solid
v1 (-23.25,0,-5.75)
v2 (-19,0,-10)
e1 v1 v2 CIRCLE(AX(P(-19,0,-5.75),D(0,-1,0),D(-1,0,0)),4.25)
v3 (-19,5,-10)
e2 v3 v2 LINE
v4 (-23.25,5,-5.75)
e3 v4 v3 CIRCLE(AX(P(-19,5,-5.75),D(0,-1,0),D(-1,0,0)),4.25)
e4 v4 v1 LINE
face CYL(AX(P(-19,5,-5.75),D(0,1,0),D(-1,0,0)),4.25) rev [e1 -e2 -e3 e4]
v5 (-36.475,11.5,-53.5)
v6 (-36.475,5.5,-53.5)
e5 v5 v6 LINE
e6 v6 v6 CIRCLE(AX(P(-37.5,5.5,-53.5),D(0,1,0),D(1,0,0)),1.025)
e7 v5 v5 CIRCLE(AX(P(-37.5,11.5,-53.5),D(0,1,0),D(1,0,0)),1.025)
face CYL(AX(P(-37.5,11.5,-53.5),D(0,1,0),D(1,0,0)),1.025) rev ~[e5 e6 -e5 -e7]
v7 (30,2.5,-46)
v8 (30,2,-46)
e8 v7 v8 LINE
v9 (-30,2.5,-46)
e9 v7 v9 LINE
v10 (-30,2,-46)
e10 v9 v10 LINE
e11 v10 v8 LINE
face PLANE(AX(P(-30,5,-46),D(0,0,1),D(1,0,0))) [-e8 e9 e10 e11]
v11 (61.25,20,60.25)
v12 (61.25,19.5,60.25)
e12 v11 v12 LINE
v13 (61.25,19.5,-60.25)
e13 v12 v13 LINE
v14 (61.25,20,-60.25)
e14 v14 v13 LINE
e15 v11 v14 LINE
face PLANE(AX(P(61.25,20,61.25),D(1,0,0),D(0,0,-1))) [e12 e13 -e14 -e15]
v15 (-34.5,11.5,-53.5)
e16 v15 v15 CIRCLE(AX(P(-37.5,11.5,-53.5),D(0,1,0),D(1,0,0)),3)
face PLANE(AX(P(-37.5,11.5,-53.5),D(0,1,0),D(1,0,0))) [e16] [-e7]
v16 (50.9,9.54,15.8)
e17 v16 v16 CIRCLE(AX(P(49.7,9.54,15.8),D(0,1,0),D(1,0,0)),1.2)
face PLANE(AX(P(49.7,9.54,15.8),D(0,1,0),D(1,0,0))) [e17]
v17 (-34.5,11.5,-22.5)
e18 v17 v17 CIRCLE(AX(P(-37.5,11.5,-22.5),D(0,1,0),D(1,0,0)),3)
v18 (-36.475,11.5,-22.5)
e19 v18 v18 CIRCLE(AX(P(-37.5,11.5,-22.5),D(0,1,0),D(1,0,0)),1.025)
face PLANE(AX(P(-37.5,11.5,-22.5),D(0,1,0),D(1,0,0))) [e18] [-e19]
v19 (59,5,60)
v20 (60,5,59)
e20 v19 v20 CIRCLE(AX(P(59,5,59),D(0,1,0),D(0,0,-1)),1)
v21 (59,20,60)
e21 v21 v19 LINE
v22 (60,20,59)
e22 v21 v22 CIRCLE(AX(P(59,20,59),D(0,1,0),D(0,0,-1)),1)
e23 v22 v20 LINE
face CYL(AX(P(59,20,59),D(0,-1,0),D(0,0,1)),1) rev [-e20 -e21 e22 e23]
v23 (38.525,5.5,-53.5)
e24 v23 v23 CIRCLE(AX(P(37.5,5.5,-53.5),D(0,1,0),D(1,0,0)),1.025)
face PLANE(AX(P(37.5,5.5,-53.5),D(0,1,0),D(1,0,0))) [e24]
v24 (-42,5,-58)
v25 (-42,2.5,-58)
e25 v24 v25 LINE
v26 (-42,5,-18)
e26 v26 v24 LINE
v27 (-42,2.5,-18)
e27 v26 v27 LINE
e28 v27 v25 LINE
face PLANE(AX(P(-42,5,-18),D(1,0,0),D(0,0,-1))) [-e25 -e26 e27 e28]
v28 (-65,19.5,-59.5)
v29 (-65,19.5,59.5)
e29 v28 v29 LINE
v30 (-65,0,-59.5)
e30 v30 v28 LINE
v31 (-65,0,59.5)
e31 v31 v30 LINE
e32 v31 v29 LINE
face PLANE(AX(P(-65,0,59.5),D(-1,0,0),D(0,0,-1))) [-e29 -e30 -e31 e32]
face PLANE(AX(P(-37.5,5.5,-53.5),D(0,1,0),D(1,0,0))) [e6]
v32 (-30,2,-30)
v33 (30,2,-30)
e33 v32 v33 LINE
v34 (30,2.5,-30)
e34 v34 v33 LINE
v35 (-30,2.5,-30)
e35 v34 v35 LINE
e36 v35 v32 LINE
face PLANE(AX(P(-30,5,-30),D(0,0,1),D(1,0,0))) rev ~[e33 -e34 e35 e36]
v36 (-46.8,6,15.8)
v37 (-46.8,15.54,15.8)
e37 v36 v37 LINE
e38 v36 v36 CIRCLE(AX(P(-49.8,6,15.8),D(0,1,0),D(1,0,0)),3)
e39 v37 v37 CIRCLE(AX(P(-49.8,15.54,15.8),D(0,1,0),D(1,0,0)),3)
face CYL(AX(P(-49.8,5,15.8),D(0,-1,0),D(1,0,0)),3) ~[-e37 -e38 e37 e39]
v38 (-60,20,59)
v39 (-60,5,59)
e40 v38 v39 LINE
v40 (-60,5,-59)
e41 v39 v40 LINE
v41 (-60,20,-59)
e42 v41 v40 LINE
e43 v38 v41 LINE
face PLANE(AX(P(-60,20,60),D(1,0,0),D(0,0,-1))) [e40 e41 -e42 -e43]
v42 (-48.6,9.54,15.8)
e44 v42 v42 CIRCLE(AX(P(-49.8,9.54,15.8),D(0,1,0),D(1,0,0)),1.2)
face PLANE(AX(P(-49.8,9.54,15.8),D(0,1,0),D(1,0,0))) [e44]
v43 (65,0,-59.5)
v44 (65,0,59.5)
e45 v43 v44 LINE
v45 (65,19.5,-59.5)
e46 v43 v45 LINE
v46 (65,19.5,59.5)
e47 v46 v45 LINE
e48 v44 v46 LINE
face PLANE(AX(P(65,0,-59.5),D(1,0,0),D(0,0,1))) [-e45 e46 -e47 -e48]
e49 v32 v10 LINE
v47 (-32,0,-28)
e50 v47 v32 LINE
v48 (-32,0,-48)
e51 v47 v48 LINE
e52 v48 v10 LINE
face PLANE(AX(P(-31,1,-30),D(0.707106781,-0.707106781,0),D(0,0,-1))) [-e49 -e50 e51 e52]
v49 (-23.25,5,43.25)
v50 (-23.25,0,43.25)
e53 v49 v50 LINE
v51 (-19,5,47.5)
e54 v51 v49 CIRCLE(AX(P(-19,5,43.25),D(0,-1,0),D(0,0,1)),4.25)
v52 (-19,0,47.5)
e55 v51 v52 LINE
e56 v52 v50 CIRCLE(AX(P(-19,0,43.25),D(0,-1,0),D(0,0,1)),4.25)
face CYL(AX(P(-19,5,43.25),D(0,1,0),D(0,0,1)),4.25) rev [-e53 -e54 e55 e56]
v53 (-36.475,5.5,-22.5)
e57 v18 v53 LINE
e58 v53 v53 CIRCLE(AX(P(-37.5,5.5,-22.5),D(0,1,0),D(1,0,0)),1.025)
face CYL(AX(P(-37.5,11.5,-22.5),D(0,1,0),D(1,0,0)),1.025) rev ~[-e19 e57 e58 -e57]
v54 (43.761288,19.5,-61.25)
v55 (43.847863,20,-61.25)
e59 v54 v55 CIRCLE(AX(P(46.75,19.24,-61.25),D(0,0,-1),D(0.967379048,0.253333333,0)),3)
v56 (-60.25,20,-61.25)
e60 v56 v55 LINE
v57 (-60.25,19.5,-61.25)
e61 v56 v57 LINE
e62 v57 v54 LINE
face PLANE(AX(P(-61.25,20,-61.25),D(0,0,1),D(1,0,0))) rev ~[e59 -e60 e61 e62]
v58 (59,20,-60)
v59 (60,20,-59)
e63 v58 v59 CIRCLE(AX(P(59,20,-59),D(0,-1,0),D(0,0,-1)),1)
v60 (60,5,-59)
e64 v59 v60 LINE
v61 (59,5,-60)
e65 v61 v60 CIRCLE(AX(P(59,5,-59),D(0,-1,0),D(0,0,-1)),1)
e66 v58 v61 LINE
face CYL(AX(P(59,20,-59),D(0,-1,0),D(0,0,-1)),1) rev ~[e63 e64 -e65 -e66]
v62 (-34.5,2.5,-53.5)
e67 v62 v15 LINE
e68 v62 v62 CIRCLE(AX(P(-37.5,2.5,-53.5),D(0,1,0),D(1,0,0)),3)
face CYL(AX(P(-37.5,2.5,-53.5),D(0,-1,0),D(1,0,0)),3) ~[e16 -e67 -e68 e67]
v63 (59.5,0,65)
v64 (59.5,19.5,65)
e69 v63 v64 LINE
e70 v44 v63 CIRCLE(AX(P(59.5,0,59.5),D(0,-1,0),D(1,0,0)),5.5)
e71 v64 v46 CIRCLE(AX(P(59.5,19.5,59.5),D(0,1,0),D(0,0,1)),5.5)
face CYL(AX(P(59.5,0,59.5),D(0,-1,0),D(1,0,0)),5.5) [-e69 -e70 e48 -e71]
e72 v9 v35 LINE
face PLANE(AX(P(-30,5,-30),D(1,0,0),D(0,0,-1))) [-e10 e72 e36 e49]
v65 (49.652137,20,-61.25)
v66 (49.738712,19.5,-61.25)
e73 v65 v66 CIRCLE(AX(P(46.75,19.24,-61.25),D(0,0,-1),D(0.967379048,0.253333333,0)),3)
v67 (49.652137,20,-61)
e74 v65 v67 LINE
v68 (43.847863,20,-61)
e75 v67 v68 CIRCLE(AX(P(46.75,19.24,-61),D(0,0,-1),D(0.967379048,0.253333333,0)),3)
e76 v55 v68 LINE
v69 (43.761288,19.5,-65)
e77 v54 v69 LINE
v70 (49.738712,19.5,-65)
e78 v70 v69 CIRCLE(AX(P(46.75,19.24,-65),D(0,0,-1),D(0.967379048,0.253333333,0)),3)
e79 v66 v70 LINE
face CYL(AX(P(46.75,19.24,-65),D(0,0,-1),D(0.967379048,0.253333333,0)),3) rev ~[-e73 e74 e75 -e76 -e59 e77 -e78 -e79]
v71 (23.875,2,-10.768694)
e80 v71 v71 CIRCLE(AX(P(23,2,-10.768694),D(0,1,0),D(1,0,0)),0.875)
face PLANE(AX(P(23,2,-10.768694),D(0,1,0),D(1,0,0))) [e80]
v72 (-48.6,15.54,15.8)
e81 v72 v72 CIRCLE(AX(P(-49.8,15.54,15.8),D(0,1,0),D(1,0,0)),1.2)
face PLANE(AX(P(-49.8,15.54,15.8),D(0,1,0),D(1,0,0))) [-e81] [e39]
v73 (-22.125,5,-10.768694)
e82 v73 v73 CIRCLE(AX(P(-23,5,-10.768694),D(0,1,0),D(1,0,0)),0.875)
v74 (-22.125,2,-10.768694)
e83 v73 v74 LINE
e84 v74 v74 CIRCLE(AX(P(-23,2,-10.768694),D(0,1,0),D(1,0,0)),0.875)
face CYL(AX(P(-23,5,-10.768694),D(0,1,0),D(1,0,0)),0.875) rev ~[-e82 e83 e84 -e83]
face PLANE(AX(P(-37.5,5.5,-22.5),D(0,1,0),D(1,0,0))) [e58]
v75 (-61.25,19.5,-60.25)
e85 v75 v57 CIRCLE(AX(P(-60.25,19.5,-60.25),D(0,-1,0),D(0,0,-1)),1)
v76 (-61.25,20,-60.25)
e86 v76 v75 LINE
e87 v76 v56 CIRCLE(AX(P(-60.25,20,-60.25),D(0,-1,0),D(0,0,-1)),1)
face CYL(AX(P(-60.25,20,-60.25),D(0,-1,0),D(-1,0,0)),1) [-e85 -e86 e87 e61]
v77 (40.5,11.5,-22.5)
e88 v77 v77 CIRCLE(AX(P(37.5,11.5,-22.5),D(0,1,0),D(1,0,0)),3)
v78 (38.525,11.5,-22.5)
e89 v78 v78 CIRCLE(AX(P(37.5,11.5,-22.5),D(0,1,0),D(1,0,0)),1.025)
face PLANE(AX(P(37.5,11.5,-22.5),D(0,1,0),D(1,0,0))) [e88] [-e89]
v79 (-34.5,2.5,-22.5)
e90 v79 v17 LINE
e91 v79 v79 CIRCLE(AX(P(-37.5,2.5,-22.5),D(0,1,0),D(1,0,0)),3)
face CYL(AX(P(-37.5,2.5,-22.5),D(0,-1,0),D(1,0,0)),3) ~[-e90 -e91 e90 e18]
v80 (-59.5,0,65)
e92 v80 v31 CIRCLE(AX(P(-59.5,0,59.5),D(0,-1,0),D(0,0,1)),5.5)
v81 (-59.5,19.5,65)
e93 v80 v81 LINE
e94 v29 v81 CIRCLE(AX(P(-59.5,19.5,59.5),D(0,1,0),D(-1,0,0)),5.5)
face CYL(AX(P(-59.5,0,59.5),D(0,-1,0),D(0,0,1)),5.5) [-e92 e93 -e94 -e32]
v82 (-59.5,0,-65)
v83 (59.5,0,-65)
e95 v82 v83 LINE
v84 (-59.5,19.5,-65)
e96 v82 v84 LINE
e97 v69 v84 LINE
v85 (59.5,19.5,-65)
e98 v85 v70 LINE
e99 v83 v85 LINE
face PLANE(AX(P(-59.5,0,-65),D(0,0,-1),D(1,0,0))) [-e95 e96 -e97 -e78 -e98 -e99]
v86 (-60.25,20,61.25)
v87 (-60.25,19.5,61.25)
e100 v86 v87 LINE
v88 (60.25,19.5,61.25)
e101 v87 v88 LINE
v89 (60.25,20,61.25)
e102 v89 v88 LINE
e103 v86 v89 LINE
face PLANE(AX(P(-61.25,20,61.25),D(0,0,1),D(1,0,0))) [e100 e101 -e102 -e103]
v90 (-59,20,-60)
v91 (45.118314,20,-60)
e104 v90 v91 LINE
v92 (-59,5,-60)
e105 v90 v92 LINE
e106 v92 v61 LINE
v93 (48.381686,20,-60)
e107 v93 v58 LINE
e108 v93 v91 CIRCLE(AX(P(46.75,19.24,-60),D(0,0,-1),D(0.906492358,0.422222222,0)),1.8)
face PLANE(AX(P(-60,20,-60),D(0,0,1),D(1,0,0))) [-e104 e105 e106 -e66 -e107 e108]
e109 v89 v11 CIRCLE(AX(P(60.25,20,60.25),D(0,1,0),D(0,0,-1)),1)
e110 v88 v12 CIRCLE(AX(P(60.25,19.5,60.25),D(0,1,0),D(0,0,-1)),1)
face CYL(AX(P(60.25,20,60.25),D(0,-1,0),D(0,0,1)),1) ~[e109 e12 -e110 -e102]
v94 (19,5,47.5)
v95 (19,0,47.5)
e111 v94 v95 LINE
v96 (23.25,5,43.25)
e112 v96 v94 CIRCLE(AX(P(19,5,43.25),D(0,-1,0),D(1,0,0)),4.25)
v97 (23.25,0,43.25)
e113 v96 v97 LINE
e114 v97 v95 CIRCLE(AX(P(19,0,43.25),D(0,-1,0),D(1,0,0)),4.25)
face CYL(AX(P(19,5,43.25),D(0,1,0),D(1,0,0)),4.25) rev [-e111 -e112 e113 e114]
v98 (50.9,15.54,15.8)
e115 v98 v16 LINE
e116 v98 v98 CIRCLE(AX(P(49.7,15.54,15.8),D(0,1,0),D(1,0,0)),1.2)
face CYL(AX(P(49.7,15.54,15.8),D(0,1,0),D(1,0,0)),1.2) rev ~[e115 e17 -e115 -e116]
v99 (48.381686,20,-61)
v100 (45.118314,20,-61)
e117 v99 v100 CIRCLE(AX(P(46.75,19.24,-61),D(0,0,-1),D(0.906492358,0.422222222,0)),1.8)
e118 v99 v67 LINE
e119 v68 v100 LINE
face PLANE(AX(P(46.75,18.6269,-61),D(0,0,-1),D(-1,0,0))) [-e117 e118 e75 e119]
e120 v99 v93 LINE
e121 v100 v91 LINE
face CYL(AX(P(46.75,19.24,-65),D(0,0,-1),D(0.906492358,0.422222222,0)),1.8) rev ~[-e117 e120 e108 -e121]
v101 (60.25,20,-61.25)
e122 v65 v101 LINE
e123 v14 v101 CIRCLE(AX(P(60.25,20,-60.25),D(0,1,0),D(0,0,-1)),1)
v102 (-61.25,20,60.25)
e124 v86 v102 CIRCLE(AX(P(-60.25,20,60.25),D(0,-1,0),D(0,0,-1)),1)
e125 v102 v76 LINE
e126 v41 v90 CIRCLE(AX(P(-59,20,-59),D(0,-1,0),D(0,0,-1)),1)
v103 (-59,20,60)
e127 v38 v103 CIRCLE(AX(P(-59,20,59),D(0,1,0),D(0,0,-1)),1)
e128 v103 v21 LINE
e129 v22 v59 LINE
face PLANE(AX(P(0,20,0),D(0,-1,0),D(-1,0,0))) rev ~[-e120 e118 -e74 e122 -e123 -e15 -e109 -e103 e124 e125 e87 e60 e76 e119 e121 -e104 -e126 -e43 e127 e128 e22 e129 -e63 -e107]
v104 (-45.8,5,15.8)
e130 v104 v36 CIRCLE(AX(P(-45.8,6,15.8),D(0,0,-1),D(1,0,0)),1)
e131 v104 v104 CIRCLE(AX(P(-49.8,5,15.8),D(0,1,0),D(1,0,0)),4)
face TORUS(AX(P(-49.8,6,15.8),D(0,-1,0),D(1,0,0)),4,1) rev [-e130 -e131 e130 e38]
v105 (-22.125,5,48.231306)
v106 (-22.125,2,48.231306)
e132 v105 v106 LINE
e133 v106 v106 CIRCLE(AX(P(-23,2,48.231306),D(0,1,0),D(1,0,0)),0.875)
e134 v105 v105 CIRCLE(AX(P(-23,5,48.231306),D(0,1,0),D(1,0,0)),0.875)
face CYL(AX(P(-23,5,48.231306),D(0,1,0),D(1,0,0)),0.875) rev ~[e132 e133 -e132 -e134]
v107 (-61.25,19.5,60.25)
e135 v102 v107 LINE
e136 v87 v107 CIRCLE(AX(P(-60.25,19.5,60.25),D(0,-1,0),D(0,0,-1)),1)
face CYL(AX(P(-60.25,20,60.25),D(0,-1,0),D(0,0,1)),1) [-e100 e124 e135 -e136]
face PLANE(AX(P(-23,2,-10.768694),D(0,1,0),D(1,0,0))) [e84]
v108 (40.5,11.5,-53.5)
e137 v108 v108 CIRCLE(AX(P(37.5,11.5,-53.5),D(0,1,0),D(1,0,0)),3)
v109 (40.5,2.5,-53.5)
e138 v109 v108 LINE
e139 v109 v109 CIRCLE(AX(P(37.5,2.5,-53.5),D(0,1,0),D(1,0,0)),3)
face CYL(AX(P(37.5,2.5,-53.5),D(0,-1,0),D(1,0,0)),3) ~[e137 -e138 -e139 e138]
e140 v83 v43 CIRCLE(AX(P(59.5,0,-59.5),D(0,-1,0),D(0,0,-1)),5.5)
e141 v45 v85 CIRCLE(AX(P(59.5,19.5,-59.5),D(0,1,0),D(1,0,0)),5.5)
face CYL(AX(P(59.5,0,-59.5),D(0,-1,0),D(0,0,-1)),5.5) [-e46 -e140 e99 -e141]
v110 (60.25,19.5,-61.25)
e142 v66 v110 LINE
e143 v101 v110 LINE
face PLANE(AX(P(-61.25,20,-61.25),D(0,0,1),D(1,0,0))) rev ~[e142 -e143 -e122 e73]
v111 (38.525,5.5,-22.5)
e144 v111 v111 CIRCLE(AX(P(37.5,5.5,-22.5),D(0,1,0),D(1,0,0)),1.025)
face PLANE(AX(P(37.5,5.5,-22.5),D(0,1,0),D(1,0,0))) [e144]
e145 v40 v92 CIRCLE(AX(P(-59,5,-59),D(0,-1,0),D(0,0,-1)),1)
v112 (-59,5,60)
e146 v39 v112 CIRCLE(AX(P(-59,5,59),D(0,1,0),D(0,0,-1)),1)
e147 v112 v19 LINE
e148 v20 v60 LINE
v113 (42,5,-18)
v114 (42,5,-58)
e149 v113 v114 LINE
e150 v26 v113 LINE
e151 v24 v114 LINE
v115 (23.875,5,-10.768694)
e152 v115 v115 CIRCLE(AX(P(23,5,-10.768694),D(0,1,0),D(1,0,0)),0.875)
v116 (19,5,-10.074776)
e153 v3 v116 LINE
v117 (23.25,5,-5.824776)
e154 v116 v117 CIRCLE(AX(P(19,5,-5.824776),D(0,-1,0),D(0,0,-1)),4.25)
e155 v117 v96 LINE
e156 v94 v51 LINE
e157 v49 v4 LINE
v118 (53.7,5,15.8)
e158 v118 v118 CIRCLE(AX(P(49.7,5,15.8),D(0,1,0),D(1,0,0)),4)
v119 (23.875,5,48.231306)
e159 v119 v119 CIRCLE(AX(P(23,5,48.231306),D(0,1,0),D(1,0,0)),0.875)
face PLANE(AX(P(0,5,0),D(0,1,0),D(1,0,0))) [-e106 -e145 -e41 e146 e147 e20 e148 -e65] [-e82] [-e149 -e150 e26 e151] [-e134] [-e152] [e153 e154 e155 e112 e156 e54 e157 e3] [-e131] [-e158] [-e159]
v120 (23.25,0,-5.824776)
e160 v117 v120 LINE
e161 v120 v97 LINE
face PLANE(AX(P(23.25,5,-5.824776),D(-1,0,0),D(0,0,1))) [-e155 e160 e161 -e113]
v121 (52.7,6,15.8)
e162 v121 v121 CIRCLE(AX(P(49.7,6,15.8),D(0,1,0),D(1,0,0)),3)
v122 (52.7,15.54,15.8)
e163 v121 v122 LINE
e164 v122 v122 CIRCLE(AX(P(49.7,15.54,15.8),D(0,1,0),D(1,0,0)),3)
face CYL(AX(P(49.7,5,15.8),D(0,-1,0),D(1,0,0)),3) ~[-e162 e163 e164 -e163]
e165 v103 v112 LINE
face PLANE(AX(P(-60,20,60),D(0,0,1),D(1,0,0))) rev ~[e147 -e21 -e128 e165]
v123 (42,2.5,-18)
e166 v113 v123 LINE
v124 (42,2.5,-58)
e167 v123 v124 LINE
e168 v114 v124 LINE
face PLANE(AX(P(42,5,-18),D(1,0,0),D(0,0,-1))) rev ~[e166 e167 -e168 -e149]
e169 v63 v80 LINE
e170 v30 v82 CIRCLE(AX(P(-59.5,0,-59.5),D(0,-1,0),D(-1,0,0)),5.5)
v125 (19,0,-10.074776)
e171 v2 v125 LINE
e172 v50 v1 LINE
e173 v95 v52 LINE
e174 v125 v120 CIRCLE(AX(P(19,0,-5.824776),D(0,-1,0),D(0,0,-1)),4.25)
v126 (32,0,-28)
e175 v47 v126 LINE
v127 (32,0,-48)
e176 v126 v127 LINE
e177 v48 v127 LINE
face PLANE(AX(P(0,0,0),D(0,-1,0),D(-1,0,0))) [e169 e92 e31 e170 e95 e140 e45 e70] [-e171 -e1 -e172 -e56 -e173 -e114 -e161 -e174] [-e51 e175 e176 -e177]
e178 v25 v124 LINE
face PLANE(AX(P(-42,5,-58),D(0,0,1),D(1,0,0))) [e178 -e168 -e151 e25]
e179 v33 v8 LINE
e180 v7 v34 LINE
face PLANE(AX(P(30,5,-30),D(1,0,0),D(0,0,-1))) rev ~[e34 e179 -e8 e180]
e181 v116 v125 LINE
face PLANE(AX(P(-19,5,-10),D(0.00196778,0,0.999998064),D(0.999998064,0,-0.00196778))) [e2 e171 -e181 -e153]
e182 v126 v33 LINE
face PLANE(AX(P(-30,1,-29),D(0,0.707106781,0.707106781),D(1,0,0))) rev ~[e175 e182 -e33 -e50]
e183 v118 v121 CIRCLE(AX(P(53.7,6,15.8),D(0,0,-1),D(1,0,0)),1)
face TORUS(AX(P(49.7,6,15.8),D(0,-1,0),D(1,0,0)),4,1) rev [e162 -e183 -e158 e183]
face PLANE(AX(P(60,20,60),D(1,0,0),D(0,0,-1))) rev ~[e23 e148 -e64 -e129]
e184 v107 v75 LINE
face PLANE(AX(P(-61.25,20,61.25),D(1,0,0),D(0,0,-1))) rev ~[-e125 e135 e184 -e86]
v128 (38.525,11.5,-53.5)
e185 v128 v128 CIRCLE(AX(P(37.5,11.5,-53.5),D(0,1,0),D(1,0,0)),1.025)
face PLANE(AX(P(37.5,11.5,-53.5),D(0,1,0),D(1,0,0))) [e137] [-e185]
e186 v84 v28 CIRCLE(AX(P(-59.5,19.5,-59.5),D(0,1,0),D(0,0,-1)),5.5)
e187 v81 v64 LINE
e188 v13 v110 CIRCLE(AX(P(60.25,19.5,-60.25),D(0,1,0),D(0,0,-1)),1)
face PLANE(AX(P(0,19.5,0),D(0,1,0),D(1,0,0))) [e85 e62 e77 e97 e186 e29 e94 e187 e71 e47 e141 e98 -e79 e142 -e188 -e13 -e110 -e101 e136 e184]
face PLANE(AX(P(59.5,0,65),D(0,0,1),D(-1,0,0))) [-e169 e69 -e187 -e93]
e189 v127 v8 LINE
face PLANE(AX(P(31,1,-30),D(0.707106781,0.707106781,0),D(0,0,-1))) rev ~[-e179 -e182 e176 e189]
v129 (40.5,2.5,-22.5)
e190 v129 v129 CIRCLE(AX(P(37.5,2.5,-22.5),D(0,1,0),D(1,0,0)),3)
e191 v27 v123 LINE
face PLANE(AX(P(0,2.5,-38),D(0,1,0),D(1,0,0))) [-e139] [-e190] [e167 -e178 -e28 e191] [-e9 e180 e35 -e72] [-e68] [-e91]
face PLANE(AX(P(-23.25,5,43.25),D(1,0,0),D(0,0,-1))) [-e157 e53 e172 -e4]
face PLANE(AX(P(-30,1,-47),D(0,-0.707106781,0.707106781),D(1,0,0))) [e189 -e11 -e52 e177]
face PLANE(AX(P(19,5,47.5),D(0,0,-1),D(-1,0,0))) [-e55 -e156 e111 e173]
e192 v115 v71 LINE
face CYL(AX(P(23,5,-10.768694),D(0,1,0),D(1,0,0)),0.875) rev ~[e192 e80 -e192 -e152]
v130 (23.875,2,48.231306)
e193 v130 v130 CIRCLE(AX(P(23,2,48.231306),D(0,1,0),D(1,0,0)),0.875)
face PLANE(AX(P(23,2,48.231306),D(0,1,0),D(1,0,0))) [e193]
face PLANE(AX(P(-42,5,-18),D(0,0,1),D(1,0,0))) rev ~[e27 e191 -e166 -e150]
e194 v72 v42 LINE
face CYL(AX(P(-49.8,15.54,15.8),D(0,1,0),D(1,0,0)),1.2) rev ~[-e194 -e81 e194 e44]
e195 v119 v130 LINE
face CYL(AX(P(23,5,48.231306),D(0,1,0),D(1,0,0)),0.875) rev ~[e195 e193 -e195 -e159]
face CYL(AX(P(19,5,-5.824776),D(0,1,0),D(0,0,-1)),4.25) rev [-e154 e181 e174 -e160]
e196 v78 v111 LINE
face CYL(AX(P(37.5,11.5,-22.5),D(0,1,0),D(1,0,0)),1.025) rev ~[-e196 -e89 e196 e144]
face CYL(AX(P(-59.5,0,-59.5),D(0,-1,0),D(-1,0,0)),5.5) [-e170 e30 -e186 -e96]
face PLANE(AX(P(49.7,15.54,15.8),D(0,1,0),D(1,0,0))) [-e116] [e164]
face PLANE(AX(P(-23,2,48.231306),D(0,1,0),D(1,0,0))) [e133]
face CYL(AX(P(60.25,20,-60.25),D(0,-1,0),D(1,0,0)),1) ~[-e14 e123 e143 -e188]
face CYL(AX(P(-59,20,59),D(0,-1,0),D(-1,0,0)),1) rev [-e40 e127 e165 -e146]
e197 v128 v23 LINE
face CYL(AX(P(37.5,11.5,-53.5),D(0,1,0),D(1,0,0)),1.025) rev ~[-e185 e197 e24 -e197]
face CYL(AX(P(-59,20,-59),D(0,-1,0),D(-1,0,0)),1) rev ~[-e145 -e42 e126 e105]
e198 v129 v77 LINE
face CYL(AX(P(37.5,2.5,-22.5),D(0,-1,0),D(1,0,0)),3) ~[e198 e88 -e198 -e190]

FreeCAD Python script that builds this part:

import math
import FreeCAD as App
import Part
import Sketcher

V = App.Vector
Q = App.Units.Quantity


def edges_at(feature, points):
    """Names of the edges that pass closest to the given points."""
    edges = feature.Shape.Edges
    near = lambda p: min(range(len(edges)), key=lambda i: edges[i].distToShape(Part.Vertex(*p))[0])
    return sorted({f"Edge{near(p) + 1}" for p in points})


def add_polygon(sketch, points):
    """Adds a closed chain of lines whose ends are joined by coincident constraints."""
    first, n = sketch.GeometryCount, len(points)
    for a, b in zip(points, points[1:] + points[:1]):
        sketch.addGeometry(Part.LineSegment(App.Vector(*a, 0), App.Vector(*b, 0)), False)
    for i in range(n):
        sketch.addConstraint(Sketcher.Constraint("Coincident", first + i, 2, first + (i + 1) % n, 1))

doc = App.newDocument("Part")
body = doc.addObject("PartDesign::Body", "Body")

# Sketch on XZ plane
sketch1 = doc.addObject("Sketcher::SketchObject", "Sketch")
body.addObject(sketch1)
sketch1.AttachmentSupport = (doc.XZ_Plane, [""])
sketch1.MapMode = "FlatFace"
sketch1.addGeometry(Part.LineSegment(V(60, -65, 0), V(-60, -65, 0)), False)
sketch1.addGeometry(Part.ArcOfCircle(Part.Circle(V(-60, -60, 0), V(0, 0, 1), 5), math.radians(180), math.radians(270)), False)
sketch1.addGeometry(Part.LineSegment(V(-65, -60, 0), V(-65, 60, 0)), False)
sketch1.addGeometry(Part.ArcOfCircle(Part.Circle(V(-60, 60, 0), V(0, 0, 1), 5), math.radians(90), math.radians(180)), False)
sketch1.addGeometry(Part.LineSegment(V(-60, 65, 0), V(60, 65, 0)), False)
sketch1.addGeometry(Part.ArcOfCircle(Part.Circle(V(60, 60, 0), V(0, 0, 1), 5), math.radians(0), math.radians(90)), False)
sketch1.addGeometry(Part.LineSegment(V(65, 60, 0), V(65, -60, 0)), False)
sketch1.addGeometry(Part.ArcOfCircle(Part.Circle(V(60, -60, 0), V(0, 0, 1), 5), math.radians(-90), math.radians(0)), False)
sketch1.addConstraint(Sketcher.Constraint("Tangent", 0, 2, 1, 2))
sketch1.addConstraint(Sketcher.Constraint("Tangent", 1, 1, 2, 1))
sketch1.addConstraint(Sketcher.Constraint("Tangent", 2, 2, 3, 2))
sketch1.addConstraint(Sketcher.Constraint("Tangent", 3, 1, 4, 1))
sketch1.addConstraint(Sketcher.Constraint("Tangent", 4, 2, 5, 2))
sketch1.addConstraint(Sketcher.Constraint("Tangent", 5, 1, 6, 1))
sketch1.addConstraint(Sketcher.Constraint("Tangent", 6, 2, 7, 2))
sketch1.addConstraint(Sketcher.Constraint("Tangent", 7, 1, 0, 1))
sketch1.addConstraint(Sketcher.Constraint("Horizontal", 0))
sketch1.addConstraint(Sketcher.Constraint("Vertical", 2))
sketch1.addConstraint(Sketcher.Constraint("Horizontal", 4))
sketch1.addConstraint(Sketcher.Constraint("Vertical", 6))
sketch1.addConstraint(Sketcher.Constraint("Equal", 1, 3))
sketch1.addConstraint(Sketcher.Constraint("Equal", 3, 5))
sketch1.addConstraint(Sketcher.Constraint("Equal", 5, 7))
sketch1.addConstraint(Sketcher.Constraint("Symmetric", 1, 3, 5, 3, -1, 1))
sketch1.addConstraint(Sketcher.Constraint("Equal", 4, 2))
sketch1.addConstraint(Sketcher.Constraint("Radius", 1, Q("5.5 mm")))
sketch1.addConstraint(Sketcher.Constraint("DistanceX", 0, 2, 0, 1, Q("119 mm")))
pad1 = doc.addObject("PartDesign::Pad", "Pad")
body.addObject(pad1)
pad1.Profile = sketch1
pad1.Length = 20
pad1.Reversed = True

# Sketch on XZ plane
sketch2 = doc.addObject("Sketcher::SketchObject", "Sketch001")
body.addObject(sketch2)
sketch2.AttachmentSupport = (doc.XZ_Plane, [""])
sketch2.MapMode = "FlatFace"
sketch2.AttachmentOffset = App.Placement(V(0, 0, -20), App.Rotation())
add_polygon(sketch2, [(-60, -60), (-60, 60), (60, 60), (60, -60)])  # lines 0-3
sketch2.addConstraint(Sketcher.Constraint("Vertical", 0))
sketch2.addConstraint(Sketcher.Constraint("Horizontal", 1))
sketch2.addConstraint(Sketcher.Constraint("Vertical", 2))
sketch2.addConstraint(Sketcher.Constraint("Horizontal", 3))
sketch2.addConstraint(Sketcher.Constraint("Symmetric", 0, 2, 2, 2, -1, 1))
sketch2.addConstraint(Sketcher.Constraint("Equal", 3, 0))
sketch2.addConstraint(Sketcher.Constraint("DistanceX", 1, 1, 1, 2, Q("120 mm")))
pocket1 = doc.addObject("PartDesign::Pocket", "Pocket")
body.addObject(pocket1)
pocket1.Profile = sketch2
pocket1.Length = 15
pocket1.Reversed = True
doc.recompute()

fillet = doc.addObject("PartDesign::Fillet", "Fillet")
body.addObject(fillet)
fillet.Base = (pocket1, edges_at(pocket1, [(-60, 12.5, -60)]))
fillet.Radius = 1
doc.recompute()

fillet2 = doc.addObject("PartDesign::Fillet", "Fillet001")
body.addObject(fillet2)
fillet2.Base = (fillet, edges_at(fillet, [(60, 12.5, -60)]))
fillet2.Radius = 1
doc.recompute()

fillet3 = doc.addObject("PartDesign::Fillet", "Fillet002")
body.addObject(fillet3)
fillet3.Base = (fillet2, edges_at(fillet2, [(-60, 12.5, 60)]))
fillet3.Radius = 1
doc.recompute()

fillet4 = doc.addObject("PartDesign::Fillet", "Fillet003")
body.addObject(fillet4)
fillet4.Base = (fillet3, edges_at(fillet3, [(60, 12.5, 60)]))
fillet4.Radius = 1

# Sketch on XZ plane
sketch3 = doc.addObject("Sketcher::SketchObject", "Sketch002")
body.addObject(sketch3)
sketch3.AttachmentSupport = (doc.XZ_Plane, [""])
sketch3.MapMode = "FlatFace"
sketch3.AttachmentOffset = App.Placement(V(0, 0, -5), App.Rotation())
sketch3.addGeometry(Part.LineSegment(V(19, -10.1, 0), V(-19, -10, 0)), False)
sketch3.addGeometry(Part.ArcOfCircle(Part.Circle(V(-19, -5.8, 0), V(0, 0, 1), 4.2), math.radians(180), math.radians(270)), False)
sketch3.addGeometry(Part.LineSegment(V(-23.2, -5.8, 0), V(-23.2, 43.2, 0)), False)
sketch3.addGeometry(Part.ArcOfCircle(Part.Circle(V(-19, 43.2, 0), V(0, 0, 1), 4.2), math.radians(90), math.radians(180)), False)
sketch3.addGeometry(Part.LineSegment(V(-19, 47.5, 0), V(19, 47.5, 0)), False)
sketch3.addGeometry(Part.ArcOfCircle(Part.Circle(V(19, 43.2, 0), V(0, 0, 1), 4.2), math.radians(0), math.radians(90)), False)
sketch3.addGeometry(Part.LineSegment(V(23.2, 43.2, 0), V(23.2, -5.8, 0)), False)
sketch3.addGeometry(Part.ArcOfCircle(Part.Circle(V(19, -5.8, 0), V(0, 0, 1), 4.2), math.radians(-90), math.radians(0)), False)
sketch3.addConstraint(Sketcher.Constraint("Coincident", 0, 2, 1, 2))
sketch3.addConstraint(Sketcher.Constraint("Tangent", 1, 1, 2, 1))
sketch3.addConstraint(Sketcher.Constraint("Tangent", 2, 2, 3, 2))
sketch3.addConstraint(Sketcher.Constraint("Tangent", 3, 1, 4, 1))
sketch3.addConstraint(Sketcher.Constraint("Tangent", 4, 2, 5, 2))
sketch3.addConstraint(Sketcher.Constraint("Tangent", 5, 1, 6, 1))
sketch3.addConstraint(Sketcher.Constraint("Tangent", 6, 2, 7, 2))
sketch3.addConstraint(Sketcher.Constraint("Coincident", 7, 1, 0, 1))
sketch3.addConstraint(Sketcher.Constraint("Vertical", 2))
sketch3.addConstraint(Sketcher.Constraint("Horizontal", 4))
sketch3.addConstraint(Sketcher.Constraint("Vertical", 6))
sketch3.addConstraint(Sketcher.Constraint("Equal", 1, 3))
sketch3.addConstraint(Sketcher.Constraint("Equal", 3, 5))
sketch3.addConstraint(Sketcher.Constraint("Equal", 5, 7))
sketch3.addConstraint(Sketcher.Constraint("Vertical", 3, 3, 0, 2))
sketch3.addConstraint(Sketcher.Constraint("Vertical", 4, 2, 7, 1))
sketch3.addConstraint(Sketcher.Constraint("DistanceX", 4, 1, 4, 2, Q("38 mm")))
sketch3.addConstraint(Sketcher.Constraint("DistanceY", 2, 1, 2, 2, Q("49 mm")))
sketch3.addConstraint(Sketcher.Constraint("Radius", 1, Q("4.25 mm")))
sketch3.addConstraint(Sketcher.Constraint("DistanceX", 1, 3, -1, 1, Q("19 mm")))
sketch3.addConstraint(Sketcher.Constraint("DistanceY", 0, 2, -1, 1, Q("10 mm")))
sketch3.addConstraint(Sketcher.Constraint("DistanceY", 6, 2, 6, 1, Q("49.074776 mm")))
pocket2 = doc.addObject("PartDesign::Pocket", "Pocket001")
body.addObject(pocket2)
pocket2.Profile = sketch3
pocket2.Length = 5
pocket2.Reversed = True

# Sketch on XZ plane
sketch4 = doc.addObject("Sketcher::SketchObject", "Sketch003")
body.addObject(sketch4)
sketch4.AttachmentSupport = (doc.XZ_Plane, [""])
sketch4.MapMode = "FlatFace"
sketch4.AttachmentOffset = App.Placement(V(0, 0, -5), App.Rotation())
add_polygon(sketch4, [(-30, -46), (-30, -30), (30, -30), (30, -46)])  # lines 0-3
sketch4.addConstraint(Sketcher.Constraint("Vertical", 0))
sketch4.addConstraint(Sketcher.Constraint("Horizontal", 1))
sketch4.addConstraint(Sketcher.Constraint("Vertical", 2))
sketch4.addConstraint(Sketcher.Constraint("Horizontal", 3))
sketch4.addConstraint(Sketcher.Constraint("DistanceX", 1, 1, 1, 2, Q("60 mm")))
sketch4.addConstraint(Sketcher.Constraint("DistanceY", 0, 1, 0, 2, Q("16 mm")))
sketch4.addConstraint(Sketcher.Constraint("DistanceX", 0, 2, -1, 1, Q("30 mm")))
sketch4.addConstraint(Sketcher.Constraint("DistanceY", 0, 2, -1, 1, Q("30 mm")))
pocket3 = doc.addObject("PartDesign::Pocket", "Pocket002")
body.addObject(pocket3)
pocket3.Profile = sketch4
pocket3.Length = 5
pocket3.Reversed = True

# Sketch on XZ plane
sketch5 = doc.addObject("Sketcher::SketchObject", "Sketch004")
body.addObject(sketch5)
sketch5.AttachmentSupport = (doc.XZ_Plane, [""])
sketch5.MapMode = "FlatFace"
sketch5.AttachmentOffset = App.Placement(V(0, 0, -5), App.Rotation())
add_polygon(sketch5, [(-42, -58), (-42, -18), (42, -18), (42, -58)])  # lines 0-3
sketch5.addConstraint(Sketcher.Constraint("Vertical", 0))
sketch5.addConstraint(Sketcher.Constraint("Horizontal", 1))
sketch5.addConstraint(Sketcher.Constraint("Vertical", 2))
sketch5.addConstraint(Sketcher.Constraint("Horizontal", 3))
sketch5.addConstraint(Sketcher.Constraint("DistanceX", 1, 1, 1, 2, Q("84 mm")))
sketch5.addConstraint(Sketcher.Constraint("DistanceY", 0, 1, 0, 2, Q("40 mm")))
sketch5.addConstraint(Sketcher.Constraint("DistanceX", 0, 2, -1, 1, Q("42 mm")))
sketch5.addConstraint(Sketcher.Constraint("DistanceY", 0, 2, -1, 1, Q("18 mm")))
pocket4 = doc.addObject("PartDesign::Pocket", "Pocket003")
body.addObject(pocket4)
pocket4.Profile = sketch5
pocket4.Length = 2.5
pocket4.Reversed = True

# Sketch on XZ plane
sketch6 = doc.addObject("Sketcher::SketchObject", "Sketch005")
body.addObject(sketch6)
sketch6.AttachmentSupport = (doc.XZ_Plane, [""])
sketch6.MapMode = "FlatFace"
sketch6.AttachmentOffset = App.Placement(V(0, 0, -2.5), App.Rotation())
sketch6.addGeometry(Part.Circle(V(37.5, -53.5, 0), V(0, 0, 1), 3), False)
sketch6.addGeometry(Part.Circle(V(-37.5, -53.5, 0), V(0, 0, 1), 3), False)
sketch6.addGeometry(Part.Circle(V(-37.5, -22.5, 0), V(0, 0, 1), 3), False)
sketch6.addGeometry(Part.Circle(V(37.5, -22.5, 0), V(0, 0, 1), 3), False)
sketch6.addConstraint(Sketcher.Constraint("Equal", 0, 1))
sketch6.addConstraint(Sketcher.Constraint("Equal", 1, 2))
sketch6.addConstraint(Sketcher.Constraint("Equal", 2, 3))
sketch6.addConstraint(Sketcher.Constraint("Symmetric", 0, 3, 1, 3, -2))
sketch6.addConstraint(Sketcher.Constraint("Symmetric", 2, 3, 3, 3, -2))
sketch6.addConstraint(Sketcher.Constraint("Vertical", 1, 3, 2, 3))
sketch6.addConstraint(Sketcher.Constraint("Diameter", 0, Q("6 mm")))
sketch6.addConstraint(Sketcher.Constraint("DistanceX", 1, 3, 0, 3, Q("75 mm")))
sketch6.addConstraint(Sketcher.Constraint("DistanceY", 1, 3, 2, 3, Q("31 mm")))
sketch6.addConstraint(Sketcher.Constraint("DistanceY", 0, 3, -1, 1, Q("53.5 mm")))
pad2 = doc.addObject("PartDesign::Pad", "Pad001")
body.addObject(pad2)
pad2.Profile = sketch6
pad2.Length = 9
pad2.Reversed = True
doc.recompute()

chamfer = doc.addObject("PartDesign::Chamfer", "Chamfer")
body.addObject(chamfer)
chamfer.Base = (pad2, edges_at(pad2, [
    (30, 0, -38),
    (0, 0, -30),
    (-30, 0, -38),
    (0, 0, -46),
]))
chamfer.Size = 2

# Sketch on XY plane
sketch7 = doc.addObject("Sketcher::SketchObject", "Sketch006")
body.addObject(sketch7)
sketch7.AttachmentSupport = (doc.XY_Plane, [""])
sketch7.MapMode = "FlatFace"
sketch7.AttachmentOffset = App.Placement(V(0, 0, -65), App.Rotation())
sketch7.addGeometry(Part.LineSegment(V(45.1, 20, 0), V(48.4, 20, 0)), False)
sketch7.addGeometry(Part.ArcOfCircle(Part.Circle(V(46.8, 19.2, 0), V(0, 0, 1), 1.8), math.radians(155), math.radians(385)), False)
sketch7.addConstraint(Sketcher.Constraint("Coincident", 0, 1, 1, 1))
sketch7.addConstraint(Sketcher.Constraint("Coincident", 1, 2, 0, 2))
sketch7.addConstraint(Sketcher.Constraint("Horizontal", 0))
sketch7.addConstraint(Sketcher.Constraint("Radius", 1, Q("1.8 mm")))
sketch7.addConstraint(Sketcher.Constraint("DistanceY", -1, 1, 0, 1, Q("20 mm")))
sketch7.addConstraint(Sketcher.Constraint("DistanceX", -1, 1, 1, 3, Q("46.75 mm")))
sketch7.addConstraint(Sketcher.Constraint("DistanceY", -1, 1, 1, 3, Q("19.24 mm")))
pocket5 = doc.addObject("PartDesign::Pocket", "Pocket004")
body.addObject(pocket5)
pocket5.Profile = sketch7
pocket5.Length = 5
pocket5.Reversed = True

# Sketch on XY plane
sketch8 = doc.addObject("Sketcher::SketchObject", "Sketch007")
body.addObject(sketch8)
sketch8.AttachmentSupport = (doc.XY_Plane, [""])
sketch8.MapMode = "FlatFace"
sketch8.AttachmentOffset = App.Placement(V(0, 0, -65), App.Rotation())
sketch8.addGeometry(Part.LineSegment(V(43.8, 20, 0), V(49.7, 20, 0)), False)
sketch8.addGeometry(Part.ArcOfCircle(Part.Circle(V(46.8, 19.2, 0), V(0, 0, 1), 3), math.radians(165), math.radians(375)), False)
sketch8.addConstraint(Sketcher.Constraint("Coincident", 0, 1, 1, 1))
sketch8.addConstraint(Sketcher.Constraint("Coincident", 1, 2, 0, 2))
sketch8.addConstraint(Sketcher.Constraint("Horizontal", 0))
sketch8.addConstraint(Sketcher.Constraint("Radius", 1, Q("3 mm")))
sketch8.addConstraint(Sketcher.Constraint("DistanceY", -1, 1, 0, 1, Q("20 mm")))
sketch8.addConstraint(Sketcher.Constraint("DistanceX", -1, 1, 1, 3, Q("46.75 mm")))
sketch8.addConstraint(Sketcher.Constraint("DistanceY", -1, 1, 1, 3, Q("19.24 mm")))
pocket6 = doc.addObject("PartDesign::Pocket", "Pocket005")
body.addObject(pocket6)
pocket6.Profile = sketch8
pocket6.Length = 4
pocket6.Reversed = True

# Sketch on XZ plane
sketch9 = doc.addObject("Sketcher::SketchObject", "Sketch008")
body.addObject(sketch9)
sketch9.AttachmentSupport = (doc.XZ_Plane, [""])
sketch9.MapMode = "FlatFace"
sketch9.AttachmentOffset = App.Placement(V(0, 0, -5), App.Rotation())
sketch9.addGeometry(Part.Circle(V(49.7, 15.8, 0), V(0, 0, 1), 3), False)
sketch9.addGeometry(Part.Circle(V(-49.8, 15.8, 0), V(0, 0, 1), 3), False)
sketch9.addConstraint(Sketcher.Constraint("Equal", 0, 1))
sketch9.addConstraint(Sketcher.Constraint("Horizontal", 0, 3, 1, 3))
sketch9.addConstraint(Sketcher.Constraint("Diameter", 0, Q("6 mm")))
sketch9.addConstraint(Sketcher.Constraint("DistanceX", -1, 1, 0, 3, Q("49.7 mm")))
sketch9.addConstraint(Sketcher.Constraint("DistanceY", -1, 1, 0, 3, Q("15.8 mm")))
sketch9.addConstraint(Sketcher.Constraint("DistanceX", 1, 3, -1, 1, Q("49.8 mm")))
pad3 = doc.addObject("PartDesign::Pad", "Pad002")
body.addObject(pad3)
pad3.Profile = sketch9
pad3.Length = 10.54
pad3.Reversed = True

# Sketch on XZ plane
sketch10 = doc.addObject("Sketcher::SketchObject", "Sketch009")
body.addObject(sketch10)
sketch10.AttachmentSupport = (doc.XZ_Plane, [""])
sketch10.MapMode = "FlatFace"
sketch10.AttachmentOffset = App.Placement(V(0, 0, -20), App.Rotation())
sketch10.addGeometry(Part.LineSegment(V(-60, 65, 0), V(60, 65, 0)), False)  # 0
sketch10.addGeometry(Part.ArcOfCircle(Part.Circle(V(60, 60, 0), V(0, 0, 1), 5), math.radians(0), math.radians(90)), False)  # 1
sketch10.addGeometry(Part.LineSegment(V(65, 60, 0), V(65, -60, 0)), False)  # 2
sketch10.addGeometry(Part.ArcOfCircle(Part.Circle(V(60, -60, 0), V(0, 0, 1), 5), math.radians(-90), math.radians(0)), False)  # 3
sketch10.addGeometry(Part.LineSegment(V(60, -65, 0), V(-60, -65, 0)), False)  # 4
sketch10.addGeometry(Part.ArcOfCircle(Part.Circle(V(-60, -60, 0), V(0, 0, 1), 5), math.radians(180), math.radians(270)), False)  # 5
sketch10.addGeometry(Part.LineSegment(V(-65, -60, 0), V(-65, 60, 0)), False)  # 6
sketch10.addGeometry(Part.ArcOfCircle(Part.Circle(V(-60, 60, 0), V(0, 0, 1), 5), math.radians(90), math.radians(180)), False)  # 7
add_polygon(sketch10, [(61, 61), (-61, 61), (-61, -61), (61, -61)])  # lines 8-11
sketch10.addConstraint(Sketcher.Constraint("Tangent", 0, 2, 1, 2))
sketch10.addConstraint(Sketcher.Constraint("Tangent", 1, 1, 2, 1))
sketch10.addConstraint(Sketcher.Constraint("Tangent", 2, 2, 3, 2))
sketch10.addConstraint(Sketcher.Constraint("Tangent", 3, 1, 4, 1))
sketch10.addConstraint(Sketcher.Constraint("Tangent", 4, 2, 5, 2))
sketch10.addConstraint(Sketcher.Constraint("Tangent", 5, 1, 6, 1))
sketch10.addConstraint(Sketcher.Constraint("Tangent", 6, 2, 7, 2))
sketch10.addConstraint(Sketcher.Constraint("Tangent", 7, 1, 0, 1))
sketch10.addConstraint(Sketcher.Constraint("Horizontal", 0))
sketch10.addConstraint(Sketcher.Constraint("Vertical", 2))
sketch10.addConstraint(Sketcher.Constraint("Horizontal", 4))
sketch10.addConstraint(Sketcher.Constraint("Vertical", 6))
sketch10.addConstraint(Sketcher.Constraint("Horizontal", 8))
sketch10.addConstraint(Sketcher.Constraint("Vertical", 9))
sketch10.addConstraint(Sketcher.Constraint("Horizontal", 10))
sketch10.addConstraint(Sketcher.Constraint("Vertical", 11))
sketch10.addConstraint(Sketcher.Constraint("Equal", 1, 3))
sketch10.addConstraint(Sketcher.Constraint("Equal", 3, 5))
sketch10.addConstraint(Sketcher.Constraint("Equal", 5, 7))
sketch10.addConstraint(Sketcher.Constraint("Symmetric", 1, 3, 5, 3, -1, 1))
sketch10.addConstraint(Sketcher.Constraint("Symmetric", 8, 2, 10, 2, -1, 1))
sketch10.addConstraint(Sketcher.Constraint("Equal", 4, 2))
sketch10.addConstraint(Sketcher.Constraint("Equal", 10, 9))
sketch10.addConstraint(Sketcher.Constraint("Radius", 1, Q("5.5 mm")))
sketch10.addConstraint(Sketcher.Constraint("DistanceX", 0, 1, 0, 2, Q("119 mm")))
sketch10.addConstraint(Sketcher.Constraint("DistanceX", 8, 2, 8, 1, Q("122.5 mm")))
pocket7 = doc.addObject("PartDesign::Pocket", "Pocket006")
body.addObject(pocket7)
pocket7.Profile = sketch10
pocket7.Length = 0.5
pocket7.Reversed = True
doc.recompute()

fillet5 = doc.addObject("PartDesign::Fillet", "Fillet004")
body.addObject(fillet5)
fillet5.Base = (pocket7, edges_at(pocket7, [(61.25, 19.75, 61.25)]))
fillet5.Radius = 1
doc.recompute()

fillet6 = doc.addObject("PartDesign::Fillet", "Fillet005")
body.addObject(fillet6)
fillet6.Base = (fillet5, edges_at(fillet5, [(-61.25, 19.75, 61.25)]))
fillet6.Radius = 1
doc.recompute()

fillet7 = doc.addObject("PartDesign::Fillet", "Fillet006")
body.addObject(fillet7)
fillet7.Base = (fillet6, edges_at(fillet6, [(-61.25, 19.75, -61.25)]))
fillet7.Radius = 1
doc.recompute()

fillet8 = doc.addObject("PartDesign::Fillet", "Fillet007")
body.addObject(fillet8)
fillet8.Base = (fillet7, edges_at(fillet7, [(61.25, 19.75, -61.25)]))
fillet8.Radius = 1

# Sketch on XZ plane
sketch11 = doc.addObject("Sketcher::SketchObject", "Sketch010")
body.addObject(sketch11)
sketch11.AttachmentSupport = (doc.XZ_Plane, [""])
sketch11.MapMode = "FlatFace"
sketch11.AttachmentOffset = App.Placement(V(0, 0, -15.54), App.Rotation())
sketch11.addGeometry(Part.Circle(V(49.7, 15.8, 0), V(0, 0, 1), 1.2), False)
sketch11.addConstraint(Sketcher.Constraint("Diameter", 0, Q("2.4 mm")))
sketch11.addConstraint(Sketcher.Constraint("DistanceX", -1, 1, 0, 3, Q("49.7 mm")))
sketch11.addConstraint(Sketcher.Constraint("DistanceY", -1, 1, 0, 3, Q("15.8 mm")))
pocket8 = doc.addObject("PartDesign::Pocket", "Pocket007")
body.addObject(pocket8)
pocket8.Profile = sketch11
pocket8.Length = 6
pocket8.Reversed = True

# Sketch on XZ plane
sketch12 = doc.addObject("Sketcher::SketchObject", "Sketch011")
body.addObject(sketch12)
sketch12.AttachmentSupport = (doc.XZ_Plane, [""])
sketch12.MapMode = "FlatFace"
sketch12.AttachmentOffset = App.Placement(V(0, 0, -15.54), App.Rotation())
sketch12.addGeometry(Part.Circle(V(-49.8, 15.8, 0), V(0, 0, 1), 1.2), False)
sketch12.addConstraint(Sketcher.Constraint("Diameter", 0, Q("2.4 mm")))
sketch12.addConstraint(Sketcher.Constraint("DistanceX", 0, 3, -1, 1, Q("49.8 mm")))
sketch12.addConstraint(Sketcher.Constraint("DistanceY", -1, 1, 0, 3, Q("15.8 mm")))
pocket9 = doc.addObject("PartDesign::Pocket", "Pocket008")
body.addObject(pocket9)
pocket9.Profile = sketch12
pocket9.Length = 6
pocket9.Reversed = True

# Sketch on XZ plane
sketch13 = doc.addObject("Sketcher::SketchObject", "Sketch012")
body.addObject(sketch13)
sketch13.AttachmentSupport = (doc.XZ_Plane, [""])
sketch13.MapMode = "FlatFace"
sketch13.AttachmentOffset = App.Placement(V(0, 0, -11.5), App.Rotation())
sketch13.addGeometry(Part.Circle(V(-37.5, -53.5, 0), V(0, 0, 1), 1), False)
sketch13.addConstraint(Sketcher.Constraint("Diameter", 0, Q("2.05 mm")))
sketch13.addConstraint(Sketcher.Constraint("DistanceX", 0, 3, -1, 1, Q("37.5 mm")))
sketch13.addConstraint(Sketcher.Constraint("DistanceY", 0, 3, -1, 1, Q("53.5 mm")))
pocket10 = doc.addObject("PartDesign::Pocket", "Pocket009")
body.addObject(pocket10)
pocket10.Profile = sketch13
pocket10.Length = 6
pocket10.Reversed = True

# Sketch on XZ plane
sketch14 = doc.addObject("Sketcher::SketchObject", "Sketch013")
body.addObject(sketch14)
sketch14.AttachmentSupport = (doc.XZ_Plane, [""])
sketch14.MapMode = "FlatFace"
sketch14.AttachmentOffset = App.Placement(V(0, 0, -11.5), App.Rotation())
sketch14.addGeometry(Part.Circle(V(37.5, -53.5, 0), V(0, 0, 1), 1), False)
sketch14.addConstraint(Sketcher.Constraint("Diameter", 0, Q("2.05 mm")))
sketch14.addConstraint(Sketcher.Constraint("DistanceX", -1, 1, 0, 3, Q("37.5 mm")))
sketch14.addConstraint(Sketcher.Constraint("DistanceY", 0, 3, -1, 1, Q("53.5 mm")))
pocket11 = doc.addObject("PartDesign::Pocket", "Pocket010")
body.addObject(pocket11)
pocket11.Profile = sketch14
pocket11.Length = 6
pocket11.Reversed = True

# Sketch on XZ plane
sketch15 = doc.addObject("Sketcher::SketchObject", "Sketch014")
body.addObject(sketch15)
sketch15.AttachmentSupport = (doc.XZ_Plane, [""])
sketch15.MapMode = "FlatFace"
sketch15.AttachmentOffset = App.Placement(V(0, 0, -11.5), App.Rotation())
sketch15.addGeometry(Part.Circle(V(-37.5, -22.5, 0), V(0, 0, 1), 1), False)
sketch15.addConstraint(Sketcher.Constraint("Diameter", 0, Q("2.05 mm")))
sketch15.addConstraint(Sketcher.Constraint("DistanceX", 0, 3, -1, 1, Q("37.5 mm")))
sketch15.addConstraint(Sketcher.Constraint("DistanceY", 0, 3, -1, 1, Q("22.5 mm")))
pocket12 = doc.addObject("PartDesign::Pocket", "Pocket011")
body.addObject(pocket12)
pocket12.Profile = sketch15
pocket12.Length = 6
pocket12.Reversed = True

# Sketch on XZ plane
sketch16 = doc.addObject("Sketcher::SketchObject", "Sketch015")
body.addObject(sketch16)
sketch16.AttachmentSupport = (doc.XZ_Plane, [""])
sketch16.MapMode = "FlatFace"
sketch16.AttachmentOffset = App.Placement(V(0, 0, -11.5), App.Rotation())
sketch16.addGeometry(Part.Circle(V(37.5, -22.5, 0), V(0, 0, 1), 1), False)
sketch16.addConstraint(Sketcher.Constraint("Diameter", 0, Q("2.05 mm")))
sketch16.addConstraint(Sketcher.Constraint("DistanceX", -1, 1, 0, 3, Q("37.5 mm")))
sketch16.addConstraint(Sketcher.Constraint("DistanceY", 0, 3, -1, 1, Q("22.5 mm")))
pocket13 = doc.addObject("PartDesign::Pocket", "Pocket012")
body.addObject(pocket13)
pocket13.Profile = sketch16
pocket13.Length = 6
pocket13.Reversed = True

# Sketch on XZ plane
sketch17 = doc.addObject("Sketcher::SketchObject", "Sketch016")
body.addObject(sketch17)
sketch17.AttachmentSupport = (doc.XZ_Plane, [""])
sketch17.MapMode = "FlatFace"
sketch17.AttachmentOffset = App.Placement(V(0, 0, -5), App.Rotation())
sketch17.addGeometry(Part.Circle(V(23, -10.8, 0), V(0, 0, 1), 0.9), False)
sketch17.addGeometry(Part.Circle(V(-23, -10.8, 0), V(0, 0, 1), 0.9), False)
sketch17.addGeometry(Part.Circle(V(-23, 48.2, 0), V(0, 0, 1), 0.9), False)
sketch17.addGeometry(Part.Circle(V(23, 48.2, 0), V(0, 0, 1), 0.9), False)
sketch17.addConstraint(Sketcher.Constraint("Equal", 0, 1))
sketch17.addConstraint(Sketcher.Constraint("Equal", 1, 2))
sketch17.addConstraint(Sketcher.Constraint("Equal", 2, 3))
sketch17.addConstraint(Sketcher.Constraint("Symmetric", 0, 3, 1, 3, -2))
sketch17.addConstraint(Sketcher.Constraint("Symmetric", 2, 3, 3, 3, -2))
sketch17.addConstraint(Sketcher.Constraint("Vertical", 1, 3, 2, 3))
sketch17.addConstraint(Sketcher.Constraint("Diameter", 0, Q("1.75 mm")))
sketch17.addConstraint(Sketcher.Constraint("DistanceX", -1, 1, 0, 3, Q("23 mm")))
sketch17.addConstraint(Sketcher.Constraint("DistanceY", 1, 3, 2, 3, Q("59 mm")))
sketch17.addConstraint(Sketcher.Constraint("DistanceY", 0, 3, -1, 1, Q("10.768694 mm")))
pocket14 = doc.addObject("PartDesign::Pocket", "Pocket013")
body.addObject(pocket14)
pocket14.Profile = sketch17
pocket14.Length = 3
pocket14.Reversed = True
doc.recompute()

fillet9 = doc.addObject("PartDesign::Fillet", "Fillet008")
body.addObject(fillet9)
fillet9.Base = (pocket14, edges_at(pocket14, [(-52.8, 5, 15.8)]))
fillet9.Radius = 1
doc.recompute()

fillet10 = doc.addObject("PartDesign::Fillet", "Fillet009")
body.addObject(fillet10)
fillet10.Base = (fillet9, edges_at(fillet9, [(46.7, 5, 15.8)]))
fillet10.Radius = 1

doc.recompute()
